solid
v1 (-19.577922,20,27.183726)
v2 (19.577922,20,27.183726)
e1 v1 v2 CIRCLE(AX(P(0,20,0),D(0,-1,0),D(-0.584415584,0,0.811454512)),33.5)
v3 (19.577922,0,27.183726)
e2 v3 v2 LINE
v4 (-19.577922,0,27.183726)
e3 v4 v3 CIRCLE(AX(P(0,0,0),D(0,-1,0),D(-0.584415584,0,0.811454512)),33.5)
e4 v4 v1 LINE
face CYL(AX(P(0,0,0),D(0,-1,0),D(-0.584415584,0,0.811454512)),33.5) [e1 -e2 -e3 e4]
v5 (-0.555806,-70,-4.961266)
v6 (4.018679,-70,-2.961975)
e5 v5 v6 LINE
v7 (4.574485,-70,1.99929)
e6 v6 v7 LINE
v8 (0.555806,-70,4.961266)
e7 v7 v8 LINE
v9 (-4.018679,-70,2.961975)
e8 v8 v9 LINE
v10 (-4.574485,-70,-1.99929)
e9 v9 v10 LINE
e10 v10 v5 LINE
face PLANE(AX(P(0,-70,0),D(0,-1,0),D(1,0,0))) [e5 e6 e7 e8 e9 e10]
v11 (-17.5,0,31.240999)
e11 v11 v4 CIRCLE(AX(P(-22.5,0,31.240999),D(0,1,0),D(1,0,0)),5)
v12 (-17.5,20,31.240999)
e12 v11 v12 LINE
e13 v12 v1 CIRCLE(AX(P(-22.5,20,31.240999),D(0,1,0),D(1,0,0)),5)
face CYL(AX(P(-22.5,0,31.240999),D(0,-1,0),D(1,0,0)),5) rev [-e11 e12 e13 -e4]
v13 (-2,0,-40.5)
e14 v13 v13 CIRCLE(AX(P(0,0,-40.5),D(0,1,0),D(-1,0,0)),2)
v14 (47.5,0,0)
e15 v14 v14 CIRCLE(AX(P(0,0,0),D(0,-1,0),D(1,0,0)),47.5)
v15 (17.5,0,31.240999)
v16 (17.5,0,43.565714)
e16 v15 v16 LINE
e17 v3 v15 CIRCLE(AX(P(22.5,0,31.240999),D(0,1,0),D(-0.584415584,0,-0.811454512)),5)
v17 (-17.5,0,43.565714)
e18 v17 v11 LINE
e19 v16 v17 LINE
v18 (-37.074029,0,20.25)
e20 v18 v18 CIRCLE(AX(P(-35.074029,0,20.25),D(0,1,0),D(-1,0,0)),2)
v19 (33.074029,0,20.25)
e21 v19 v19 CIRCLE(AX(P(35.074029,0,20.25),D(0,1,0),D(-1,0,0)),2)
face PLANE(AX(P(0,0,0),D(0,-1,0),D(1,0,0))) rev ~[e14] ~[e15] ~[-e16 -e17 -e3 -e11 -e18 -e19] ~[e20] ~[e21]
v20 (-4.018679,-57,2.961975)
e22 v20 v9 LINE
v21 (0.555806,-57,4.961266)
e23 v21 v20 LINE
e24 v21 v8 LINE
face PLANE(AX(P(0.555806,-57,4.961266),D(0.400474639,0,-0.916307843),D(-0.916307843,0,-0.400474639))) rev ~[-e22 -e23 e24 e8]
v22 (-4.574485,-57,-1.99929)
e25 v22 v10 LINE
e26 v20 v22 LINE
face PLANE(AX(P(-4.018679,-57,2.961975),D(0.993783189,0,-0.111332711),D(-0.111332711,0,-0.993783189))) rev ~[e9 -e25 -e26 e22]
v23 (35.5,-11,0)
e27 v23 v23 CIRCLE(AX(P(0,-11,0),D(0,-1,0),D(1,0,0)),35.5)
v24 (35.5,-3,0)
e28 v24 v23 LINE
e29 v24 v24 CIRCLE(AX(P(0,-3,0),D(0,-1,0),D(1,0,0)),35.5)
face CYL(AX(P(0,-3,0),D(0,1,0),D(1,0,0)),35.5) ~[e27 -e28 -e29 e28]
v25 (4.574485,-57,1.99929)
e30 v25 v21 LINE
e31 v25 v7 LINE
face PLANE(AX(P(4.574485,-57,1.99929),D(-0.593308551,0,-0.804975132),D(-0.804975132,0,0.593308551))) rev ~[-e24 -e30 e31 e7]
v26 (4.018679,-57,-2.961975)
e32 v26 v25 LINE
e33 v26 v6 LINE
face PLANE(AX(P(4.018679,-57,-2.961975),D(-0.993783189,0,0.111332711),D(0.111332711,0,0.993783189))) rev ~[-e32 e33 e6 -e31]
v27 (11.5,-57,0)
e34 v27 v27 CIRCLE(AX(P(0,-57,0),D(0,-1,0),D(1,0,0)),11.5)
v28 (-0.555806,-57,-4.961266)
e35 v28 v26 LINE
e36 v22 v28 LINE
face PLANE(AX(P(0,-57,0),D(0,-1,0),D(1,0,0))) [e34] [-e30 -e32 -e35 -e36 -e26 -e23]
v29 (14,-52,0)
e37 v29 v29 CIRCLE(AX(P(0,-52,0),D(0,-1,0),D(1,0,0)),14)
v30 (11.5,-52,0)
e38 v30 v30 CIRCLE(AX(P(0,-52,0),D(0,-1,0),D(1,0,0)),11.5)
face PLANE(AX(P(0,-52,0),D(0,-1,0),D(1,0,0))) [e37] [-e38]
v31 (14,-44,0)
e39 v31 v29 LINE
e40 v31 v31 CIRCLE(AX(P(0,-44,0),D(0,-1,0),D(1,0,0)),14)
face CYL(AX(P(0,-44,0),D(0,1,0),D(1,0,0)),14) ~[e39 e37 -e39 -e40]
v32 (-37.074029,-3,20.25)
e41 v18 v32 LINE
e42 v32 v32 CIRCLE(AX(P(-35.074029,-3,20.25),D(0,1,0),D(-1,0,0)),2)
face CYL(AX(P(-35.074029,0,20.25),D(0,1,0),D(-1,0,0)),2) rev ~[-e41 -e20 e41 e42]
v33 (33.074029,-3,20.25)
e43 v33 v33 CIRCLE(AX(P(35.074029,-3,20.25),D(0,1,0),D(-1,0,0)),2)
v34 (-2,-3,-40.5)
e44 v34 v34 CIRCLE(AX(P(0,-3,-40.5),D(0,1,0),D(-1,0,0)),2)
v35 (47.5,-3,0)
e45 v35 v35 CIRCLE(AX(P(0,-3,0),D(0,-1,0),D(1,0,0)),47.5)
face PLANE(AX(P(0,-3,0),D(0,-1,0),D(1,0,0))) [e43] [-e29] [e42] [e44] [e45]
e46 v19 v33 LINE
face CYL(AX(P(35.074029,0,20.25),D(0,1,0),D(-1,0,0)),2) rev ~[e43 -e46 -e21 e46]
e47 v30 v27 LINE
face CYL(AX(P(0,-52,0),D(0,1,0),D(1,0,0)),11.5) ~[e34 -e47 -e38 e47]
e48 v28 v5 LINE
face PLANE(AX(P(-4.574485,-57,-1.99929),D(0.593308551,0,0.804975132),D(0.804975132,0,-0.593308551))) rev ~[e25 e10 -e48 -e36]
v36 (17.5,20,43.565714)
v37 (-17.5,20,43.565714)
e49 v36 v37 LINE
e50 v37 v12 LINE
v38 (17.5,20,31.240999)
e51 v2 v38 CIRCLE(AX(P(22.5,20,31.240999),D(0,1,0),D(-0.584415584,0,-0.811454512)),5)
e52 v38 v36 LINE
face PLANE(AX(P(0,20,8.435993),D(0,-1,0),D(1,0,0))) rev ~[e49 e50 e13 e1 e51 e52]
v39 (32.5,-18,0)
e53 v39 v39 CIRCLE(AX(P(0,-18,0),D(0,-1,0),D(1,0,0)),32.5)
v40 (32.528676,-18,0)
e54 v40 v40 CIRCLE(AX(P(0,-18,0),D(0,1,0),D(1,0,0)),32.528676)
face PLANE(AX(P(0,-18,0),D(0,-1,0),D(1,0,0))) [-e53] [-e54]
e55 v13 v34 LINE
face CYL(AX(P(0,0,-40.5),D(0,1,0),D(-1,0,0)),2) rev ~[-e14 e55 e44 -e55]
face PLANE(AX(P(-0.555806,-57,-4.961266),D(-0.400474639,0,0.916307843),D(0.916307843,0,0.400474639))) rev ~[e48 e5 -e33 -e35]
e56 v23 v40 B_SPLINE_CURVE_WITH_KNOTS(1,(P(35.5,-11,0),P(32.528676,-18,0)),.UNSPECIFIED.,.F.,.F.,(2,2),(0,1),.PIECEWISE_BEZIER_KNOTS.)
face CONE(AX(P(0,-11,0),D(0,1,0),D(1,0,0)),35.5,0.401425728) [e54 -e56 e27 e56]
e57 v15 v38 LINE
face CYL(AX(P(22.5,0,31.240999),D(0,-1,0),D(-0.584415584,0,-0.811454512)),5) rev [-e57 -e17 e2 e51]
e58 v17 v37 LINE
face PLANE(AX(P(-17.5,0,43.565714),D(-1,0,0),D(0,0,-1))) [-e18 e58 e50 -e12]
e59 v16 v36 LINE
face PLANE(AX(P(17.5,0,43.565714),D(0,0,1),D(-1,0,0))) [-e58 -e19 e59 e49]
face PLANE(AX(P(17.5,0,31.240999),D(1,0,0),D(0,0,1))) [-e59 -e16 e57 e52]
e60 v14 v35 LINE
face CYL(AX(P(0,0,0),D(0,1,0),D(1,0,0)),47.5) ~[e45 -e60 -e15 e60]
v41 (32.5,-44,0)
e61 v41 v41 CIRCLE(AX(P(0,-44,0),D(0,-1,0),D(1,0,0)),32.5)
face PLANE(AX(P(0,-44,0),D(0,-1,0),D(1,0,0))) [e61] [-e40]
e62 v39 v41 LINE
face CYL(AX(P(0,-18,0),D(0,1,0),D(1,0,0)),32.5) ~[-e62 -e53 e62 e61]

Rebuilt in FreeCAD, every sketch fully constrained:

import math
import FreeCAD as App
import Part
import Sketcher

V = App.Vector


def add_polygon(sketch, points):
    """Adds a closed chain of lines whose ends are joined by coincident constraints."""
    first, n = sketch.GeometryCount, len(points)
    for a, b in zip(points, points[1:] + points[:1]):
        sketch.addGeometry(Part.LineSegment(App.Vector(*a, 0), App.Vector(*b, 0)), False)
    for i in range(n):
        sketch.addConstraint(Sketcher.Constraint("Coincident", first + i, 2, first + (i + 1) % n, 1))

doc = App.newDocument("Part")
body = doc.addObject("PartDesign::Body", "Body")

# Sketch on XZ plane
sketch1 = body.newObject("Sketcher::SketchObject", "Sketch")
sketch1.AttachmentSupport = (doc.getObject("XZ_Plane"), [""])
sketch1.MapMode = "FlatFace"
sketch1.addGeometry([
    Part.ArcOfCircle(Part.Circle(V(-22.5, 31.2, 0), V(0, 0, 1), 5), math.radians(-54), math.radians(0)),  # 0
    Part.ArcOfCircle(Part.Circle(V(0, 0, 0), V(0, 0, 1), 33.5), math.radians(126), math.radians(414)),  # 1
    Part.ArcOfCircle(Part.Circle(V(22.5, 31.2, 0), V(0, 0, 1), 5), math.radians(180), math.radians(234)),  # 2
    Part.LineSegment(V(17.5, 31.2, 0), V(17.5, 43.6, 0)),  # 3
    Part.LineSegment(V(17.5, 43.6, 0), V(-17.5, 43.6, 0)),  # 4
    Part.LineSegment(V(-17.5, 43.6, 0), V(-17.5, 31.2, 0)),  # 5
], False)
sketch1.addConstraint([
    Sketcher.Constraint("Tangent", 0, 1, 1, 1),
    Sketcher.Constraint("Tangent", 1, 2, 2, 2),
    Sketcher.Constraint("Tangent", 2, 1, 3, 1),
    Sketcher.Constraint("Coincident", 3, 2, 4, 1),
    Sketcher.Constraint("Coincident", 4, 2, 5, 1),
    Sketcher.Constraint("Tangent", 5, 2, 0, 2),
    Sketcher.Constraint("Vertical", 3),
    Sketcher.Constraint("Horizontal", 4),
    Sketcher.Constraint("Vertical", 5),
    Sketcher.Constraint("Coincident", 1, 3, -1, 1),
    Sketcher.Constraint("Equal", 0, 2),
    Sketcher.Constraint("Horizontal", 0, 3, 2, 3),
    Sketcher.Constraint("Radius", 0, 5.0),
    Sketcher.Constraint("Radius", 1, 33.5),
    Sketcher.Constraint("DistanceX", 4, 2, 4, 1, 35.0),
    Sketcher.Constraint("DistanceY", 3, 1, 3, 2, 12.324715),
])
pad1 = body.newObject("PartDesign::Pad", "Pad")
pad1.Profile = sketch1
pad1.Length = 20
pad1.Reversed = True

# Sketch on XZ plane
sketch2 = body.newObject("Sketcher::SketchObject", "Sketch001")
sketch2.AttachmentSupport = (doc.getObject("XZ_Plane"), [""])
sketch2.MapMode = "FlatFace"
sketch2.addGeometry(Part.Circle(V(0, 0, 0), V(0, 0, 1), 48), False)
sketch2.addConstraint([
    Sketcher.Constraint("Coincident", 0, 3, -1, 1),
    Sketcher.Constraint("Diameter", 0, 95.0),
])
pad2 = body.newObject("PartDesign::Pad", "Pad001")
pad2.Profile = sketch2
pad2.Length = 3

# Sketch on XZ plane
sketch3 = body.newObject("Sketcher::SketchObject", "Sketch002")
sketch3.AttachmentSupport = (doc.getObject("XZ_Plane"), [""])
sketch3.MapMode = "FlatFace"
sketch3.AttachmentOffset = App.Placement(V(0, 0, 3), App.Rotation())
sketch3.addGeometry(Part.Circle(V(0, 0, 0), V(0, 0, 1), 36), False)
sketch3.addConstraint([
    Sketcher.Constraint("Coincident", 0, 3, -1, 1),
    Sketcher.Constraint("Diameter", 0, 71.0),
])
pad3 = body.newObject("PartDesign::Pad", "Pad002")
pad3.Profile = sketch3
pad3.Length = 8

# Sketch on XZ plane
sketch4 = body.newObject("Sketcher::SketchObject", "Sketch003")
sketch4.AttachmentSupport = (doc.getObject("XZ_Plane"), [""])
sketch4.MapMode = "FlatFace"
sketch4.AttachmentOffset = App.Placement(V(0, 0, 11), App.Rotation())
sketch4.addGeometry(Part.Circle(V(0, 0, 0), V(0, 0, 1), 36), False)
sketch4.addConstraint([
    Sketcher.Constraint("Coincident", 0, 3, -1, 1),
    Sketcher.Constraint("Diameter", 0, 71.0),
])
pad4 = body.newObject("PartDesign::Pad", "Pad003")
pad4.Profile = sketch4
pad4.Length = 7
pad4.TaperAngle = -23

# Sketch on XZ plane
sketch5 = body.newObject("Sketcher::SketchObject", "Sketch004")
sketch5.AttachmentSupport = (doc.getObject("XZ_Plane"), [""])
sketch5.MapMode = "FlatFace"
sketch5.AttachmentOffset = App.Placement(V(0, 0, 18), App.Rotation())
sketch5.addGeometry(Part.Circle(V(0, 0, 0), V(0, 0, 1), 32), False)
sketch5.addConstraint([
    Sketcher.Constraint("Coincident", 0, 3, -1, 1),
    Sketcher.Constraint("Diameter", 0, 65.0),
])
pad5 = body.newObject("PartDesign::Pad", "Pad004")
pad5.Profile = sketch5
pad5.Length = 26

# Sketch on XZ plane
sketch6 = body.newObject("Sketcher::SketchObject", "Sketch005")
sketch6.AttachmentSupport = (doc.getObject("XZ_Plane"), [""])
sketch6.MapMode = "FlatFace"
sketch6.AttachmentOffset = App.Placement(V(0, 0, 44), App.Rotation())
sketch6.addGeometry(Part.Circle(V(0, 0, 0), V(0, 0, 1), 14), False)
sketch6.addConstraint([
    Sketcher.Constraint("Coincident", 0, 3, -1, 1),
    Sketcher.Constraint("Diameter", 0, 28.0),
])
pad6 = body.newObject("PartDesign::Pad", "Pad005")
pad6.Profile = sketch6
pad6.Length = 8

# Sketch on XZ plane
sketch7 = body.newObject("Sketcher::SketchObject", "Sketch006")
sketch7.AttachmentSupport = (doc.getObject("XZ_Plane"), [""])
sketch7.MapMode = "FlatFace"
sketch7.AttachmentOffset = App.Placement(V(0, 0, 52), App.Rotation())
sketch7.addGeometry(Part.Circle(V(0, 0, 0), V(0, 0, 1), 12), False)
sketch7.addConstraint([
    Sketcher.Constraint("Coincident", 0, 3, -1, 1),
    Sketcher.Constraint("Diameter", 0, 23.0),
])
pad7 = body.newObject("PartDesign::Pad", "Pad006")
pad7.Profile = sketch7
pad7.Length = 5

# Sketch on XZ plane
sketch8 = body.newObject("Sketcher::SketchObject", "Sketch007")
sketch8.AttachmentSupport = (doc.getObject("XZ_Plane"), [""])
sketch8.MapMode = "FlatFace"
sketch8.AttachmentOffset = App.Placement(V(0, 0, 57), App.Rotation())
add_polygon(sketch8, [(4.6, 2), (0.6, 5), (-4, 3), (-4.6, -2), (-0.6, -5), (4, -3)])  # lines 0-5
sketch8.addConstraint([
    Sketcher.Constraint("Symmetric", 0, 2, 3, 2, -1, 1),
    Sketcher.Constraint("Symmetric", 1, 2, 4, 2, -1, 1),
    Sketcher.Constraint("Symmetric", 2, 2, 5, 2, -1, 1),
    Sketcher.Constraint("Equal", 0, 1),
    Sketcher.Constraint("Equal", 1, 2),
    Sketcher.Constraint("Distance", 0, 4.992302),
    Sketcher.Constraint("DistanceX", 1, 2, -1, 1, 4.018679),
    Sketcher.Constraint("DistanceY", 2, 2, -1, 1, 1.99929),
    Sketcher.Constraint("DistanceY", 1, 2, 0, 2, 1.99929),
])
pad8 = body.newObject("PartDesign::Pad", "Pad007")
pad8.Profile = sketch8
pad8.Length = 13

# Sketch on XZ plane
sketch9 = body.newObject("Sketcher::SketchObject", "Sketch008")
sketch9.AttachmentSupport = (doc.getObject("XZ_Plane"), [""])
sketch9.MapMode = "FlatFace"
sketch9.addGeometry([
    Part.Circle(V(0, -40.5, 0), V(0, 0, 1), 2),
    Part.Circle(V(35.1, 20.2, 0), V(0, 0, 1), 2),
    Part.Circle(V(-35.1, 20.2, 0), V(0, 0, 1), 2),
], False)
sketch9.addConstraint([
    Sketcher.Constraint("Equal", 0, 1),
    Sketcher.Constraint("Equal", 1, 2),
    Sketcher.Constraint("Symmetric", 1, 3, 2, 3, -2),
    Sketcher.Constraint("PointOnObject", 0, 3, -2),
    Sketcher.Constraint("Diameter", 0, 4.0),
    Sketcher.Constraint("DistanceY", 0, 3, -1, 1, 40.5),
    Sketcher.Constraint("DistanceY", -1, 1, 1, 3, 20.25),
    Sketcher.Constraint("DistanceX", -1, 1, 1, 3, 35.074029),
])
pocket1 = body.newObject("PartDesign::Pocket", "Pocket")
pocket1.Profile = sketch9
pocket1.Type = "ThroughAll"
pocket1.Reversed = True

doc.recompute()
